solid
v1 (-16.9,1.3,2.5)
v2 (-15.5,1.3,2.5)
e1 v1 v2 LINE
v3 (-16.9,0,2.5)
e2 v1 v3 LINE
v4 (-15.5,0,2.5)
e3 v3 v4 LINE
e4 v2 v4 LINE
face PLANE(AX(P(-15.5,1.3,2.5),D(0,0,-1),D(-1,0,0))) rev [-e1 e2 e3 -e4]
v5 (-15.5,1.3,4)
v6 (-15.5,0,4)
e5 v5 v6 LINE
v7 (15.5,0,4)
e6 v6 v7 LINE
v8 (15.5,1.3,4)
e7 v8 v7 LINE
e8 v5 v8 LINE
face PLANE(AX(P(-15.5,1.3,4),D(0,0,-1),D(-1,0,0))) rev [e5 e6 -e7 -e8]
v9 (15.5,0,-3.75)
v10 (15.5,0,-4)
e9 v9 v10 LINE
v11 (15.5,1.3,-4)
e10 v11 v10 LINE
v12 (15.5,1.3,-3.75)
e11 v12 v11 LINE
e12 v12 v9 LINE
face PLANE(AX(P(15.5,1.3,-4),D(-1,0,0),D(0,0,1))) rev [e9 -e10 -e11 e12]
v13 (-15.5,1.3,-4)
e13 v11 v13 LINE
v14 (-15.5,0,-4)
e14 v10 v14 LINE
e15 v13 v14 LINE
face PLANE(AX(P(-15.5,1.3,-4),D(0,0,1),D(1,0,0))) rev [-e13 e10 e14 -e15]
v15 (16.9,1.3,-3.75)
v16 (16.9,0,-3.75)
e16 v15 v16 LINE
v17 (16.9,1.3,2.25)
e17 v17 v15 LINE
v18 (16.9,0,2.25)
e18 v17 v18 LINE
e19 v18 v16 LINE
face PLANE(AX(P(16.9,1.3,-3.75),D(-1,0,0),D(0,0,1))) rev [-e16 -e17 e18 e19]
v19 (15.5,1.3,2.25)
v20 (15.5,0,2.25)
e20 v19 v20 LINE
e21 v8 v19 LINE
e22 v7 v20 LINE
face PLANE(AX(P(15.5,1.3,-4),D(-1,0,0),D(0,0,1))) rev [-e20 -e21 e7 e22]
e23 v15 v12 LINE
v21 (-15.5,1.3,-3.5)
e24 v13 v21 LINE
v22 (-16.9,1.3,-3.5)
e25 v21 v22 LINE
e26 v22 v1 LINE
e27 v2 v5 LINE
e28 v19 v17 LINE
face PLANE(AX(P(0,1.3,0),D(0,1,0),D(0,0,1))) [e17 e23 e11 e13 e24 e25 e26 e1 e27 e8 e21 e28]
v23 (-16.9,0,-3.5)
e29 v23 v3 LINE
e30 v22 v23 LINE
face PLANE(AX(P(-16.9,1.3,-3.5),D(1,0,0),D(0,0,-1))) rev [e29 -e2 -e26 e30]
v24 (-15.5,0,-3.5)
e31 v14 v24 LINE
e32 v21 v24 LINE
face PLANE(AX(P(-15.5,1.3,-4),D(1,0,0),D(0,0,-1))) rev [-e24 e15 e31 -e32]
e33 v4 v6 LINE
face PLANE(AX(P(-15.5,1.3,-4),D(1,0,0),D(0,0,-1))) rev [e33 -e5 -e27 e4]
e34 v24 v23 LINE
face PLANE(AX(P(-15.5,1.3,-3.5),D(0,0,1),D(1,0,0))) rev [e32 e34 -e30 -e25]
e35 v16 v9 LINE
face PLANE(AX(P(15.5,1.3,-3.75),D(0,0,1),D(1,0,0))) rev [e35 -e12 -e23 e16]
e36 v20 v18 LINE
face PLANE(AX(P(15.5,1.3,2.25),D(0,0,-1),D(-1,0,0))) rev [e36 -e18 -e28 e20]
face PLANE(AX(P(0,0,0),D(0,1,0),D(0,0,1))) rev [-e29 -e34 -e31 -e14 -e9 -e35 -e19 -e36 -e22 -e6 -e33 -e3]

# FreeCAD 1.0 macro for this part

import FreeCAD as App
import Part
import Sketcher
Q = App.Units.Quantity

doc = App.newDocument("Part")
body = doc.addObject("PartDesign::Body", "Body")

# Sketch on XZ plane
sketch1 = body.newObject("Sketcher::SketchObject", "Sketch")
sketch1.AttachmentSupport = (doc.getObject("XZ_Plane"), [""])
sketch1.MapMode = "FlatFace"
sketch1.addGeometry([
    Part.LineSegment(App.Vector(-16, -4, 0), App.Vector(-16, 4, 0)),
    Part.LineSegment(App.Vector(-16, 4, 0), App.Vector(16, 4, 0)),
    Part.LineSegment(App.Vector(16, 4, 0), App.Vector(16, -4, 0)),
    Part.LineSegment(App.Vector(16, -4, 0), App.Vector(-16, -4, 0)),
], False)
sketch1.addConstraint([
    Sketcher.Constraint("Coincident", 0, 2, 1, 1),
    Sketcher.Constraint("Coincident", 1, 2, 2, 1),
    Sketcher.Constraint("Coincident", 2, 2, 3, 1),
    Sketcher.Constraint("Coincident", 3, 2, 0, 1),
    Sketcher.Constraint("Vertical", 0),
    Sketcher.Constraint("Horizontal", 1),
    Sketcher.Constraint("Vertical", 2),
    Sketcher.Constraint("Horizontal", 3),
    Sketcher.Constraint("Symmetric", 0, 2, 2, 2, -1, 1),
    Sketcher.Constraint("DistanceX", 1, 1, 1, 2, Q("31 mm")),
    Sketcher.Constraint("DistanceY", 0, 1, 0, 2, Q("8 mm")),
])
pad1 = body.newObject("PartDesign::Pad", "Pad")
pad1.Profile = sketch1
pad1.Length = 1.3
pad1.Reversed = True

# Sketch on XZ plane
sketch2 = body.newObject("Sketcher::SketchObject", "Sketch001")
sketch2.AttachmentSupport = (doc.getObject("XZ_Plane"), [""])
sketch2.MapMode = "FlatFace"
sketch2.addGeometry([
    Part.LineSegment(App.Vector(-16.9, -3.5, 0), App.Vector(-16.9, 2.5, 0)),  # 0
    Part.LineSegment(App.Vector(-16.9, 2.5, 0), App.Vector(-15.5, 2.5, 0)),  # 1
    Part.LineSegment(App.Vector(-15.5, 2.5, 0), App.Vector(-15.5, -3.5, 0)),  # 2
    Part.LineSegment(App.Vector(-15.5, -3.5, 0), App.Vector(-16.9, -3.5, 0)),  # 3
    Part.LineSegment(App.Vector(15.5, -3.8, 0), App.Vector(15.5, 2.2, 0)),  # 4
    Part.LineSegment(App.Vector(15.5, 2.2, 0), App.Vector(16.9, 2.2, 0)),  # 5
    Part.LineSegment(App.Vector(16.9, 2.2, 0), App.Vector(16.9, -3.8, 0)),  # 6
    Part.LineSegment(App.Vector(16.9, -3.8, 0), App.Vector(15.5, -3.8, 0)),  # 7
], False)
sketch2.addConstraint([
    Sketcher.Constraint("Coincident", 0, 2, 1, 1),
    Sketcher.Constraint("Coincident", 1, 2, 2, 1),
    Sketcher.Constraint("Coincident", 2, 2, 3, 1),
    Sketcher.Constraint("Coincident", 3, 2, 0, 1),
    Sketcher.Constraint("Coincident", 4, 2, 5, 1),
    Sketcher.Constraint("Coincident", 5, 2, 6, 1),
    Sketcher.Constraint("Coincident", 6, 2, 7, 1),
    Sketcher.Constraint("Coincident", 7, 2, 4, 1),
    Sketcher.Constraint("Vertical", 0),
    Sketcher.Constraint("Horizontal", 1),
    Sketcher.Constraint("Vertical", 2),
    Sketcher.Constraint("Horizontal", 3),
    Sketcher.Constraint("Vertical", 4),
    Sketcher.Constraint("Horizontal", 5),
    Sketcher.Constraint("Vertical", 6),
    Sketcher.Constraint("Horizontal", 7),
    Sketcher.Constraint("Equal", 3, 5),
    Sketcher.Constraint("Equal", 2, 4),
    Sketcher.Constraint("DistanceY", 0, 1, 0, 2, Q("6 mm")),
    Sketcher.Constraint("DistanceX", 1, 1, 1, 2, Q("1.4 mm")),
    Sketcher.Constraint("DistanceX", 1, 2, 4, 2, Q("31 mm")),
    Sketcher.Constraint("DistanceX", 0, 2, -1, 1, Q("16.9 mm")),
    Sketcher.Constraint("DistanceY", -1, 1, 0, 2, Q("2.5 mm")),
    Sketcher.Constraint("DistanceY", -1, 1, 4, 2, Q("2.25 mm")),
])
pad2 = body.newObject("PartDesign::Pad", "Pad001")
pad2.Profile = sketch2
pad2.Length = 1.3
pad2.Reversed = True

doc.recompute()
